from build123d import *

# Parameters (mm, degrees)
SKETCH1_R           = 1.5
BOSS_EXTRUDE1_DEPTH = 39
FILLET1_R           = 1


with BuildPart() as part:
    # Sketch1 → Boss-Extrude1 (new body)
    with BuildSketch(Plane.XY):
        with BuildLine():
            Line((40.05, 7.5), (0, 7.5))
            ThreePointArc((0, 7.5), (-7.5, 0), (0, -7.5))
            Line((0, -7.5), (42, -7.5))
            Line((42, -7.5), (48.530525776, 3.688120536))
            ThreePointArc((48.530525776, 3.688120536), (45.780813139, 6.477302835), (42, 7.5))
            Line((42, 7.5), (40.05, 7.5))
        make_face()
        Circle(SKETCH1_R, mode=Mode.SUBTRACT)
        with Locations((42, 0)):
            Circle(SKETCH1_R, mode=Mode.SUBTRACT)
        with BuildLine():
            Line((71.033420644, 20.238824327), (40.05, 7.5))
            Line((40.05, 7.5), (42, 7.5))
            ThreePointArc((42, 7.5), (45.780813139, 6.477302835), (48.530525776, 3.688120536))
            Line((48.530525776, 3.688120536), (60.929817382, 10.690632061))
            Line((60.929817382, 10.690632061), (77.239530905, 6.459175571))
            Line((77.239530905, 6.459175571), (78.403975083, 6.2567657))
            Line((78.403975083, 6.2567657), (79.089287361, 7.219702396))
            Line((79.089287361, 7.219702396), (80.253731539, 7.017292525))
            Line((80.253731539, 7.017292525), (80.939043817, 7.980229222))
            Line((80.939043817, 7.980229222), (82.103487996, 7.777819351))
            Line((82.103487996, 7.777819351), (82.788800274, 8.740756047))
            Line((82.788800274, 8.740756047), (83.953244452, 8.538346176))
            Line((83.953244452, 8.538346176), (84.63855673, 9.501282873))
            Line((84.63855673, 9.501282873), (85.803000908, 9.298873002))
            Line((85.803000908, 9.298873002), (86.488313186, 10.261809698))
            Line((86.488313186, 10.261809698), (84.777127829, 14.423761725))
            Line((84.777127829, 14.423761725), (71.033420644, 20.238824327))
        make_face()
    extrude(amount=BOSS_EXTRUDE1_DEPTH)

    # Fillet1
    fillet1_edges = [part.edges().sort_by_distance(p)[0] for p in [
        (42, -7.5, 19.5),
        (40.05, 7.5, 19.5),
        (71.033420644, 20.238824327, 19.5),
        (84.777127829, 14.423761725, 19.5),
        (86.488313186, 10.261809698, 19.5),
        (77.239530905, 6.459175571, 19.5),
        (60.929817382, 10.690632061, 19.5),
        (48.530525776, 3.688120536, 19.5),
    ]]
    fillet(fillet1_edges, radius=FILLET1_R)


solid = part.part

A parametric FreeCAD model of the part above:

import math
import FreeCAD as App
import Part
import Sketcher

V = App.Vector
Q = App.Units.Quantity


def edges_at(feature, points):
    """Names of the edges that pass closest to the given points."""
    edges = feature.Shape.Edges
    near = lambda p: min(range(len(edges)), key=lambda i: edges[i].distToShape(Part.Vertex(*p))[0])
    return sorted({f"Edge{near(p) + 1}" for p in points})

doc = App.newDocument("Part")
params = doc.addObject("Spreadsheet::Sheet", "Params")
for row, (alias, value) in enumerate([
    ("sketch1_diameter", "3 mm"),
    ("sketch1_radius", "7.5 mm"),
    ("sketch1_width", "42 mm"),
    ("sketch1_length", "4.5 mm"),
    ("sketch1_length2", "33.5 mm"),
    ("pad1_length", "39 mm"),
    ("fillet_radius", "1 mm"),
], start=1):
    params.set(f"A{row}", alias)
    params.set(f"B{row}", "=" + value)
    params.setAlias(f"B{row}", alias)

body = doc.addObject("PartDesign::Body", "Body")

# Sketch on XY plane
sketch1 = body.newObject("Sketcher::SketchObject", "Sketch")
sketch1.AttachmentSupport = (doc.getObject("XY_Plane"), [""])
sketch1.MapMode = "FlatFace"
sketch1.addGeometry(Part.ArcOfCircle(Part.Circle(V(0, 0, 0), V(0, 0, 1), 7.5), math.radians(90), math.radians(270)), False)
sketch1.addGeometry(Part.LineSegment(V(0, -7.5, 0), V(42, -7.5, 0)), False)
sketch1.addGeometry(Part.LineSegment(V(42, -7.5, 0), V(48.5, 3.7, 0)), False)
sketch1.addGeometry(Part.LineSegment(V(48.5, 3.7, 0), V(60.9, 10.7, 0)), False)
sketch1.addGeometry(Part.LineSegment(V(60.9, 10.7, 0), V(77.2, 6.5, 0)), False)
sketch1.addGeometry(Part.LineSegment(V(77.2, 6.5, 0), V(78.4, 6.3, 0)), False)
sketch1.addGeometry(Part.LineSegment(V(78.4, 6.3, 0), V(79.1, 7.2, 0)), False)
sketch1.addGeometry(Part.LineSegment(V(79.1, 7.2, 0), V(80.3, 7, 0)), False)
sketch1.addGeometry(Part.LineSegment(V(80.3, 7, 0), V(80.9, 8, 0)), False)
sketch1.addGeometry(Part.LineSegment(V(80.9, 8, 0), V(82.1, 7.8, 0)), False)
sketch1.addGeometry(Part.LineSegment(V(82.1, 7.8, 0), V(82.8, 8.7, 0)), False)
sketch1.addGeometry(Part.LineSegment(V(82.8, 8.7, 0), V(84, 8.5, 0)), False)
sketch1.addGeometry(Part.LineSegment(V(84, 8.5, 0), V(84.6, 9.5, 0)), False)
sketch1.addGeometry(Part.LineSegment(V(84.6, 9.5, 0), V(85.8, 9.3, 0)), False)
sketch1.addGeometry(Part.LineSegment(V(85.8, 9.3, 0), V(86.5, 10.3, 0)), False)
sketch1.addGeometry(Part.LineSegment(V(86.5, 10.3, 0), V(84.8, 14.4, 0)), False)
sketch1.addGeometry(Part.LineSegment(V(84.8, 14.4, 0), V(71, 20.2, 0)), False)
sketch1.addGeometry(Part.LineSegment(V(71, 20.2, 0), V(40, 7.5, 0)), False)
sketch1.addGeometry(Part.LineSegment(V(40, 7.5, 0), V(0, 7.5, 0)), False)
sketch1.addGeometry(Part.Circle(V(0, 0, 0), V(0, 0, 1), 1.5), False)
sketch1.addGeometry(Part.Circle(V(42, 0, 0), V(0, 0, 1), 1.5), False)
sketch1.addConstraint(Sketcher.Constraint("Tangent", 0, 2, 1, 1))
sketch1.addConstraint(Sketcher.Constraint("Coincident", 1, 2, 2, 1))
sketch1.addConstraint(Sketcher.Constraint("Coincident", 2, 2, 3, 1))
sketch1.addConstraint(Sketcher.Constraint("Coincident", 3, 2, 4, 1))
sketch1.addConstraint(Sketcher.Constraint("Coincident", 4, 2, 5, 1))
sketch1.addConstraint(Sketcher.Constraint("Coincident", 5, 2, 6, 1))
sketch1.addConstraint(Sketcher.Constraint("Coincident", 6, 2, 7, 1))
sketch1.addConstraint(Sketcher.Constraint("Coincident", 7, 2, 8, 1))
sketch1.addConstraint(Sketcher.Constraint("Coincident", 8, 2, 9, 1))
sketch1.addConstraint(Sketcher.Constraint("Coincident", 9, 2, 10, 1))
sketch1.addConstraint(Sketcher.Constraint("Coincident", 10, 2, 11, 1))
sketch1.addConstraint(Sketcher.Constraint("Coincident", 11, 2, 12, 1))
sketch1.addConstraint(Sketcher.Constraint("Coincident", 12, 2, 13, 1))
sketch1.addConstraint(Sketcher.Constraint("Coincident", 13, 2, 14, 1))
sketch1.addConstraint(Sketcher.Constraint("Coincident", 14, 2, 15, 1))
sketch1.addConstraint(Sketcher.Constraint("Coincident", 15, 2, 16, 1))
sketch1.addConstraint(Sketcher.Constraint("Coincident", 16, 2, 17, 1))
sketch1.addConstraint(Sketcher.Constraint("Coincident", 17, 2, 18, 1))
sketch1.addConstraint(Sketcher.Constraint("Tangent", 18, 2, 0, 1))
sketch1.addConstraint(Sketcher.Constraint("Horizontal", 1))
sketch1.addConstraint(Sketcher.Constraint("Horizontal", 18))
sketch1.addConstraint(Sketcher.Constraint("Coincident", 0, 3, -1, 1))
sketch1.addConstraint(Sketcher.Constraint("Coincident", 19, 3, -1, 1))
sketch1.addConstraint(Sketcher.Constraint("Equal", 19, 20))
sketch1.addConstraint(Sketcher.Constraint("PointOnObject", 20, 3, -1))
sketch1.addConstraint(Sketcher.Constraint("Parallel", 5, 7))
sketch1.addConstraint(Sketcher.Constraint("Parallel", 6, 8))
sketch1.addConstraint(Sketcher.Constraint("Parallel", 7, 9))
sketch1.addConstraint(Sketcher.Constraint("Parallel", 8, 10))
sketch1.addConstraint(Sketcher.Constraint("Parallel", 9, 11))
sketch1.addConstraint(Sketcher.Constraint("Parallel", 10, 12))
sketch1.addConstraint(Sketcher.Constraint("Parallel", 11, 13))
sketch1.addConstraint(Sketcher.Constraint("Parallel", 12, 14))
sketch1.addConstraint(Sketcher.Constraint("Perpendicular", 15, 17))
sketch1.addConstraint(Sketcher.Constraint("Vertical", 20, 3, 1, 2))
sketch1.addConstraint(Sketcher.Constraint("Equal", 5, 6))
sketch1.addConstraint(Sketcher.Constraint("Equal", 6, 7))
sketch1.addConstraint(Sketcher.Constraint("Equal", 7, 8))
sketch1.addConstraint(Sketcher.Constraint("Equal", 8, 9))
sketch1.addConstraint(Sketcher.Constraint("Equal", 9, 10))
sketch1.addConstraint(Sketcher.Constraint("Equal", 10, 11))
sketch1.addConstraint(Sketcher.Constraint("Equal", 11, 12))
sketch1.addConstraint(Sketcher.Constraint("Equal", 12, 13))
sketch1.addConstraint(Sketcher.Constraint("Equal", 13, 14))
sketch1.addConstraint(Sketcher.Constraint("Diameter", 19, Q("3 mm")))
sketch1.addConstraint(Sketcher.Constraint("Radius", 0, Q("7.5 mm")))
sketch1.addConstraint(Sketcher.Constraint("DistanceX", 1, 1, 1, 2, Q("42 mm")))
sketch1.addConstraint(Sketcher.Constraint("Distance", 15, Q("4.5 mm")))
sketch1.addConstraint(Sketcher.Constraint("Distance", 17, Q("33.5 mm")))
sketch1.addConstraint(Sketcher.Constraint("DistanceX", 18, 2, 18, 1, Q("40.05 mm")))
sketch1.addConstraint(Sketcher.Constraint("Angle", 15, Q("112.35 deg")))
sketch1.addConstraint(Sketcher.Constraint("Distance", 3, Q("14.24 mm")))
sketch1.addConstraint(Sketcher.Constraint("DistanceX", -1, 1, 13, 2, Q("85.803001 mm")))
sketch1.addConstraint(Sketcher.Constraint("DistanceX", -1, 1, 10, 2, Q("82.7888 mm")))
sketch1.addConstraint(Sketcher.Constraint("DistanceY", -1, 1, 2, 2, Q("3.688121 mm")))
sketch1.addConstraint(Sketcher.Constraint("DistanceX", -1, 1, 4, 2, Q("77.239531 mm")))
sketch1.addConstraint(Sketcher.Constraint("DistanceY", -1, 1, 8, 2, Q("7.980229 mm")))
sketch1.addConstraint(Sketcher.Constraint("DistanceY", -1, 1, 9, 2, Q("7.777819 mm")))
sketch1.addConstraint(Sketcher.Constraint("DistanceX", 2, 2, 3, 2, Q("12.399292 mm")))
sketch1.addConstraint(Sketcher.Constraint("DistanceX", 2, 2, 5, 2, Q("29.873449 mm")))
sketch1.setExpression("Constraints[44]", "Params.sketch1_diameter")
sketch1.setExpression("Constraints[45]", "Params.sketch1_radius")
sketch1.setExpression("Constraints[46]", "Params.sketch1_width")
sketch1.setExpression("Constraints[47]", "Params.sketch1_length")
sketch1.setExpression("Constraints[48]", "Params.sketch1_length2")
pad1 = body.newObject("PartDesign::Pad", "Pad")
pad1.Profile = sketch1
pad1.setExpression("Length", "Params.pad1_length")
doc.recompute()

fillet = body.newObject("PartDesign::Fillet", "Fillet")
fillet.Base = (pad1, edges_at(pad1, [
    (42, -7.5, 19.5),
    (40.05, 7.5, 19.5),
    (71.033, 20.239, 19.5),
    (84.777, 14.424, 19.5),
    (86.488, 10.262, 19.5),
    (77.24, 6.459, 19.5),
    (60.93, 10.691, 19.5),
    (48.531, 3.688, 19.5),
]))
fillet.setExpression("Radius", "Params.fillet_radius")

doc.recompute()
